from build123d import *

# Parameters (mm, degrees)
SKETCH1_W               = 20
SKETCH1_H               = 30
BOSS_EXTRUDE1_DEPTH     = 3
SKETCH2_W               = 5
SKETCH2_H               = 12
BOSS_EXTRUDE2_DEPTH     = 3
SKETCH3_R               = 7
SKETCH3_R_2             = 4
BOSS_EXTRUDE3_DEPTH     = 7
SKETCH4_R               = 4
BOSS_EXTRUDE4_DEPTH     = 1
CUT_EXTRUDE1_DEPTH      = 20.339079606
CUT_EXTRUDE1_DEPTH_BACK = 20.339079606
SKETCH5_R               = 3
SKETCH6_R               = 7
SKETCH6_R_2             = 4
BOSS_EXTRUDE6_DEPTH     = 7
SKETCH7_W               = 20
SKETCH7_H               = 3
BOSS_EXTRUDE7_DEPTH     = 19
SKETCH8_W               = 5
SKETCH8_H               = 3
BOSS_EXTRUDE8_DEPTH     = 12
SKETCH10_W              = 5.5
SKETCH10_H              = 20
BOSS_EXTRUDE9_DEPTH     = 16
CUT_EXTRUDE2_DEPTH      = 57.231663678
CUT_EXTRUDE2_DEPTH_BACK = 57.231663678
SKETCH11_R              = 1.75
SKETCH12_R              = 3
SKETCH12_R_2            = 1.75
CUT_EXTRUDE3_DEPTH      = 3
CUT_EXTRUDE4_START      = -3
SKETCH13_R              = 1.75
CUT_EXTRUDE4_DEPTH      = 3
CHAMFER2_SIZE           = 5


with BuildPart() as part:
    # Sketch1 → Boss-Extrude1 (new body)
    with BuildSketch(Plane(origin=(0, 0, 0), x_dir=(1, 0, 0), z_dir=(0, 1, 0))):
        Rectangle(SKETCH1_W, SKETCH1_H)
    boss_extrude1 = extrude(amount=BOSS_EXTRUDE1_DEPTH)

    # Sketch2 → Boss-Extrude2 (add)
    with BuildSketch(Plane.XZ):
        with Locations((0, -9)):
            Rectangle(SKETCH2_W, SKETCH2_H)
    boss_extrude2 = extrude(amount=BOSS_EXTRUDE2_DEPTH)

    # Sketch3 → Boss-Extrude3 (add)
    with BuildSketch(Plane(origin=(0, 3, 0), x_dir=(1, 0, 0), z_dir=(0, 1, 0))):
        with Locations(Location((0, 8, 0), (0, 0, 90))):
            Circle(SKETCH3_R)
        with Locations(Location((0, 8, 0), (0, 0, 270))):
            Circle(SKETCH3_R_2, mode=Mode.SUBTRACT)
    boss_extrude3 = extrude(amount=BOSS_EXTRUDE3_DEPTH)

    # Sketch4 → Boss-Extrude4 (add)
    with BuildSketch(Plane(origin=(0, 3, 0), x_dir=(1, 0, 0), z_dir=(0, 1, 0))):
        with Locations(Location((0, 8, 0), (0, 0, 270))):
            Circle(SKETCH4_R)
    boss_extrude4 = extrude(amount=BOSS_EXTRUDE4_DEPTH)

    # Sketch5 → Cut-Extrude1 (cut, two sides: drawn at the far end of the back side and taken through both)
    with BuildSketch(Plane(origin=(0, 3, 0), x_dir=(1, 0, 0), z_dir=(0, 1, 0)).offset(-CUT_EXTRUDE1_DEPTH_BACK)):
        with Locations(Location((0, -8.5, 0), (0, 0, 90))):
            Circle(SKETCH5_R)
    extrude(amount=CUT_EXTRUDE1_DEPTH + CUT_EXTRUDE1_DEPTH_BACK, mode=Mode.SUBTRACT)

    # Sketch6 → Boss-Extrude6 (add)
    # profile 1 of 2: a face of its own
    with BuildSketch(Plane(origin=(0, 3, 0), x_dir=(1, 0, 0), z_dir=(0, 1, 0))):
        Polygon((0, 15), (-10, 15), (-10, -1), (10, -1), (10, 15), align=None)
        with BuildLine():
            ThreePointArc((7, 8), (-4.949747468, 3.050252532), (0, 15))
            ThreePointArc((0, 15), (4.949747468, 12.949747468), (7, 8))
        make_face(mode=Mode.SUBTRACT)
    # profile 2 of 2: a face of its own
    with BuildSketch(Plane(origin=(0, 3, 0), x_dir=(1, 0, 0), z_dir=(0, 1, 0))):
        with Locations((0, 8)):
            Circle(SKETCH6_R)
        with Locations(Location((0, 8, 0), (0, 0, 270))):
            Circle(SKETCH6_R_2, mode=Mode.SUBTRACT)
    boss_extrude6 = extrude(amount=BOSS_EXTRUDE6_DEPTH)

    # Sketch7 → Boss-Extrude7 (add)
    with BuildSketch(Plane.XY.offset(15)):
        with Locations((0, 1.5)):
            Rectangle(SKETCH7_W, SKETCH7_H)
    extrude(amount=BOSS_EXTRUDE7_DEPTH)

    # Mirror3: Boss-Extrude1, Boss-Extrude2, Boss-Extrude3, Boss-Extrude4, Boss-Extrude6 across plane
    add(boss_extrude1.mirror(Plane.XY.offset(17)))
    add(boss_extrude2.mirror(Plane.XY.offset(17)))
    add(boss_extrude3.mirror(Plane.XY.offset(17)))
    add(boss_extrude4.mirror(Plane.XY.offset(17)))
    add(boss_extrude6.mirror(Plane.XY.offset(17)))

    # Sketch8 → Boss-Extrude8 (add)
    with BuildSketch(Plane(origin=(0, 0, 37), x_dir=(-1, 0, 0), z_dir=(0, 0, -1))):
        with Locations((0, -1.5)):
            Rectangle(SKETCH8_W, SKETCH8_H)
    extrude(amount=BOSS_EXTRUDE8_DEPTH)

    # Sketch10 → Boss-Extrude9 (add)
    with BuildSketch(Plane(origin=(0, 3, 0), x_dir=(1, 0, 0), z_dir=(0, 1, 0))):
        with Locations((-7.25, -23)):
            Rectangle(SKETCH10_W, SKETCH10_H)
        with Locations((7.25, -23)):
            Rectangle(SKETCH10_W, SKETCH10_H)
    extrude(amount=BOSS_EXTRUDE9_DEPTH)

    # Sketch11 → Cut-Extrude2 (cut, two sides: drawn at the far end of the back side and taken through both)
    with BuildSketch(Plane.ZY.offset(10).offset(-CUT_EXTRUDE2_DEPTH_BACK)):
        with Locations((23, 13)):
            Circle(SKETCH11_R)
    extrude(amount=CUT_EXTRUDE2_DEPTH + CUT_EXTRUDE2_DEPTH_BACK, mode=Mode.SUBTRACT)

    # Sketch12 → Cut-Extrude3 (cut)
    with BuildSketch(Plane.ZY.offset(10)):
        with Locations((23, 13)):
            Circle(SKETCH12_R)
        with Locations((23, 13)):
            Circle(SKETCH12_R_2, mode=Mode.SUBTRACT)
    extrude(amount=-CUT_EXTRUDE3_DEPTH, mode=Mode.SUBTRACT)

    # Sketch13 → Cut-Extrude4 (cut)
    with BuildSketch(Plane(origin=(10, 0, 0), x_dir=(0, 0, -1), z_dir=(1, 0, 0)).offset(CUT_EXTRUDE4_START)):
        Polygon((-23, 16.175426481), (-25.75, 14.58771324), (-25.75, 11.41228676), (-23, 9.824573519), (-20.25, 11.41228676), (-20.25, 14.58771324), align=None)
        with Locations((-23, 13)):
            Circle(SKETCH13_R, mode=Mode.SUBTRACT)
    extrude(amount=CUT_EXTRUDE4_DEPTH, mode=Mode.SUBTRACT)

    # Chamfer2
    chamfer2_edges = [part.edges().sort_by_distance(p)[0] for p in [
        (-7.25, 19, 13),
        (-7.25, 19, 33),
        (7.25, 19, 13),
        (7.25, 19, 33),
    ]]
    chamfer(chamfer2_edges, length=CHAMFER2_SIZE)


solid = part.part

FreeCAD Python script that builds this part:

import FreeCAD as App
import Part
import Sketcher
from FreeCAD import Vector
Q = App.Units.Quantity


def edges_at(feature, points):
    """Names of the edges that pass closest to the given points."""
    edges = feature.Shape.Edges
    near = lambda p: min(range(len(edges)), key=lambda i: edges[i].distToShape(Part.Vertex(*p))[0])
    return sorted({f"Edge{near(p) + 1}" for p in points})

doc = App.newDocument("Part")
body = doc.addObject("PartDesign::Body", "Body")

# Sketch on XZ plane
sketch1 = body.newObject("Sketcher::SketchObject", "Sketch")
sketch1.AttachmentSupport = (doc.getObject("XZ_Plane"), [""])
sketch1.MapMode = "FlatFace"
sketch1.addGeometry(Part.LineSegment(Vector(-10, -15, 0), Vector(-10, 15, 0)), False)
sketch1.addGeometry(Part.LineSegment(Vector(-10, 15, 0), Vector(10, 15, 0)), False)
sketch1.addGeometry(Part.LineSegment(Vector(10, 15, 0), Vector(10, -15, 0)), False)
sketch1.addGeometry(Part.LineSegment(Vector(10, -15, 0), Vector(-10, -15, 0)), False)
sketch1.addConstraint(Sketcher.Constraint("Coincident", 0, 2, 1, 1))
sketch1.addConstraint(Sketcher.Constraint("Coincident", 1, 2, 2, 1))
sketch1.addConstraint(Sketcher.Constraint("Coincident", 2, 2, 3, 1))
sketch1.addConstraint(Sketcher.Constraint("Coincident", 3, 2, 0, 1))
sketch1.addConstraint(Sketcher.Constraint("Vertical", 0))
sketch1.addConstraint(Sketcher.Constraint("Horizontal", 1))
sketch1.addConstraint(Sketcher.Constraint("Vertical", 2))
sketch1.addConstraint(Sketcher.Constraint("Horizontal", 3))
sketch1.addConstraint(Sketcher.Constraint("Symmetric", 0, 2, 2, 2, -1, 1))
sketch1.addConstraint(Sketcher.Constraint("DistanceX", 1, 1, 1, 2, 20.0))
sketch1.addConstraint(Sketcher.Constraint("DistanceY", 0, 1, 0, 2, 30.0))
pad1 = body.newObject("PartDesign::Pad", "Pad")
pad1.Profile = sketch1
pad1.Length = 3
pad1.Reversed = True

# Sketch on XZ plane
sketch2 = body.newObject("Sketcher::SketchObject", "Sketch001")
sketch2.AttachmentSupport = (doc.getObject("XZ_Plane"), [""])
sketch2.MapMode = "FlatFace"
sketch2.addGeometry(Part.LineSegment(Vector(-2, -3, 0), Vector(-2, -15, 0)), False)
sketch2.addGeometry(Part.LineSegment(Vector(-2, -15, 0), Vector(2, -15, 0)), False)
sketch2.addGeometry(Part.LineSegment(Vector(2, -15, 0), Vector(2, -3, 0)), False)
sketch2.addGeometry(Part.LineSegment(Vector(2, -3, 0), Vector(-2, -3, 0)), False)
sketch2.addConstraint(Sketcher.Constraint("Coincident", 0, 2, 1, 1))
sketch2.addConstraint(Sketcher.Constraint("Coincident", 1, 2, 2, 1))
sketch2.addConstraint(Sketcher.Constraint("Coincident", 2, 2, 3, 1))
sketch2.addConstraint(Sketcher.Constraint("Coincident", 3, 2, 0, 1))
sketch2.addConstraint(Sketcher.Constraint("Vertical", 0))
sketch2.addConstraint(Sketcher.Constraint("Horizontal", 1))
sketch2.addConstraint(Sketcher.Constraint("Vertical", 2))
sketch2.addConstraint(Sketcher.Constraint("Horizontal", 3))
sketch2.addConstraint(Sketcher.Constraint("DistanceX", 1, 1, 1, 2, 5.0))
sketch2.addConstraint(Sketcher.Constraint("DistanceY", 0, 2, 0, 1, 12.0))
sketch2.addConstraint(Sketcher.Constraint("DistanceY", 0, 2, -1, 1, 15.0))
sketch2.addConstraint(Sketcher.Constraint("DistanceX", 0, 2, -1, 1, 2.5))
pad2 = body.newObject("PartDesign::Pad", "Pad001")
pad2.Profile = sketch2
pad2.Length = 3

# Sketch on XZ plane
sketch3 = body.newObject("Sketcher::SketchObject", "Sketch002")
sketch3.AttachmentSupport = (doc.getObject("XZ_Plane"), [""])
sketch3.MapMode = "FlatFace"
sketch3.AttachmentOffset = App.Placement(Vector(0, 0, -3), App.Rotation())
sketch3.addGeometry(Part.Circle(Vector(0, -8, 0), Vector(0, 0, 1), 7), False)
sketch3.addGeometry(Part.Circle(Vector(0, -8, 0), Vector(0, 0, 1), 4), False)
sketch3.addConstraint(Sketcher.Constraint("Coincident", 1, 3, 0, 3))
sketch3.addConstraint(Sketcher.Constraint("PointOnObject", 0, 3, -2))
sketch3.addConstraint(Sketcher.Constraint("Diameter", 0, 14.0))
sketch3.addConstraint(Sketcher.Constraint("Diameter", 1, 8.0))
sketch3.addConstraint(Sketcher.Constraint("DistanceY", 0, 3, -1, 1, 8.0))
pad3 = body.newObject("PartDesign::Pad", "Pad002")
pad3.Profile = sketch3
pad3.Length = 7
pad3.Reversed = True

# Sketch on XZ plane
sketch4 = body.newObject("Sketcher::SketchObject", "Sketch003")
sketch4.AttachmentSupport = (doc.getObject("XZ_Plane"), [""])
sketch4.MapMode = "FlatFace"
sketch4.AttachmentOffset = App.Placement(Vector(0, 0, -3), App.Rotation())
sketch4.addGeometry(Part.Circle(Vector(0, -8, 0), Vector(0, 0, 1), 4), False)
sketch4.addConstraint(Sketcher.Constraint("PointOnObject", 0, 3, -2))
sketch4.addConstraint(Sketcher.Constraint("Diameter", 0, 8.0))
sketch4.addConstraint(Sketcher.Constraint("DistanceY", 0, 3, -1, 1, 8.0))
pad4 = body.newObject("PartDesign::Pad", "Pad003")
pad4.Profile = sketch4
pad4.Length = 1
pad4.Reversed = True

# Sketch on XZ plane
sketch5 = body.newObject("Sketcher::SketchObject", "Sketch004")
sketch5.AttachmentSupport = (doc.getObject("XZ_Plane"), [""])
sketch5.MapMode = "FlatFace"
sketch5.AttachmentOffset = App.Placement(Vector(0, 0, -3), App.Rotation())
sketch5.addGeometry(Part.Circle(Vector(0, 8.5, 0), Vector(0, 0, 1), 3), False)
sketch5.addConstraint(Sketcher.Constraint("PointOnObject", 0, 3, -2))
sketch5.addConstraint(Sketcher.Constraint("Diameter", 0, 6.0))
sketch5.addConstraint(Sketcher.Constraint("DistanceY", -1, 1, 0, 3, 8.5))
pocket1 = body.newObject("PartDesign::Pocket", "Pocket")
pocket1.Profile = sketch5
pocket1.Type = "ThroughAll"
pocket1.Midplane = True

# Sketch on XZ plane
sketch6 = body.newObject("Sketcher::SketchObject", "Sketch005")
sketch6.AttachmentSupport = (doc.getObject("XZ_Plane"), [""])
sketch6.MapMode = "FlatFace"
sketch6.AttachmentOffset = App.Placement(Vector(0, 0, -3), App.Rotation())
sketch6.addGeometry(Part.LineSegment(Vector(10, -15, 0), Vector(-10, -15, 0)), False)
sketch6.addGeometry(Part.LineSegment(Vector(-10, -15, 0), Vector(-10, 1, 0)), False)
sketch6.addGeometry(Part.LineSegment(Vector(-10, 1, 0), Vector(10, 1, 0)), False)
sketch6.addGeometry(Part.LineSegment(Vector(10, 1, 0), Vector(10, -15, 0)), False)
sketch6.addGeometry(Part.Circle(Vector(0, -8, 0), Vector(0, 0, 1), 4), False)
sketch6.addConstraint(Sketcher.Constraint("Coincident", 0, 2, 1, 1))
sketch6.addConstraint(Sketcher.Constraint("Coincident", 1, 2, 2, 1))
sketch6.addConstraint(Sketcher.Constraint("Coincident", 2, 2, 3, 1))
sketch6.addConstraint(Sketcher.Constraint("Coincident", 3, 2, 0, 1))
sketch6.addConstraint(Sketcher.Constraint("Horizontal", 0))
sketch6.addConstraint(Sketcher.Constraint("Vertical", 1))
sketch6.addConstraint(Sketcher.Constraint("Horizontal", 2))
sketch6.addConstraint(Sketcher.Constraint("Vertical", 3))
sketch6.addConstraint(Sketcher.Constraint("PointOnObject", 4, 3, -2))
sketch6.addConstraint(Sketcher.Constraint("Diameter", 4, 8.0))
sketch6.addConstraint(Sketcher.Constraint("DistanceX", 0, 2, 0, 1, 20.0))
sketch6.addConstraint(Sketcher.Constraint("DistanceY", 1, 1, 1, 2, 16.0))
sketch6.addConstraint(Sketcher.Constraint("DistanceY", 4, 3, -1, 1, 8.0))
sketch6.addConstraint(Sketcher.Constraint("DistanceX", 0, 2, -1, 1, 10.0))
sketch6.addConstraint(Sketcher.Constraint("DistanceY", 0, 2, -1, 1, 15.0))
pad5 = body.newObject("PartDesign::Pad", "Pad004")
pad5.Profile = sketch6
pad5.Length = 7
pad5.Reversed = True

# Sketch on XY plane
sketch7 = body.newObject("Sketcher::SketchObject", "Sketch006")
sketch7.AttachmentSupport = (doc.getObject("XY_Plane"), [""])
sketch7.MapMode = "FlatFace"
sketch7.AttachmentOffset = App.Placement(Vector(0, 0, 15), App.Rotation())
sketch7.addGeometry(Part.LineSegment(Vector(-10, 3, 0), Vector(-10, 0, 0)), False)
sketch7.addGeometry(Part.LineSegment(Vector(-10, 0, 0), Vector(10, 0, 0)), False)
sketch7.addGeometry(Part.LineSegment(Vector(10, 0, 0), Vector(10, 3, 0)), False)
sketch7.addGeometry(Part.LineSegment(Vector(10, 3, 0), Vector(-10, 3, 0)), False)
sketch7.addConstraint(Sketcher.Constraint("Coincident", 0, 2, 1, 1))
sketch7.addConstraint(Sketcher.Constraint("Coincident", 1, 2, 2, 1))
sketch7.addConstraint(Sketcher.Constraint("Coincident", 2, 2, 3, 1))
sketch7.addConstraint(Sketcher.Constraint("Coincident", 3, 2, 0, 1))
sketch7.addConstraint(Sketcher.Constraint("Vertical", 0))
sketch7.addConstraint(Sketcher.Constraint("Horizontal", 1))
sketch7.addConstraint(Sketcher.Constraint("Vertical", 2))
sketch7.addConstraint(Sketcher.Constraint("Horizontal", 3))
sketch7.addConstraint(Sketcher.Constraint("Symmetric", 0, 2, 1, 2, -1, 1))
sketch7.addConstraint(Sketcher.Constraint("DistanceX", 1, 1, 1, 2, 20.0))
sketch7.addConstraint(Sketcher.Constraint("DistanceY", 0, 2, 0, 1, 3.0))
pad6 = body.newObject("PartDesign::Pad", "Pad005")
pad6.Profile = sketch7
pad6.Length = 19
doc.recompute()

datumplane = body.newObject("PartDesign::Plane", "DatumPlane")
datumplane.AttachmentSupport = (doc.getObject("XY_Plane"), [""])
datumplane.MapMode = "FlatFace"
datumplane.AttachmentOffset = App.Placement(Vector(0, 0, 17), App.Rotation())
mirrored = body.newObject("PartDesign::Mirrored", "Mirrored")
mirrored.Originals = [pad1, pad2, pad3, pad4, pad5]
mirrored.MirrorPlane = (datumplane, [""])
body.Tip = mirrored

# Sketch on XY plane
sketch8 = body.newObject("Sketcher::SketchObject", "Sketch007")
sketch8.AttachmentSupport = (doc.getObject("XY_Plane"), [""])
sketch8.MapMode = "FlatFace"
sketch8.AttachmentOffset = App.Placement(Vector(0, 0, 37), App.Rotation())
sketch8.addGeometry(Part.LineSegment(Vector(2.5, 0, 0), Vector(2.5, -3, 0)), False)
sketch8.addGeometry(Part.LineSegment(Vector(2.5, -3, 0), Vector(-2.5, -3, 0)), False)
sketch8.addGeometry(Part.LineSegment(Vector(-2.5, -3, 0), Vector(-2.5, 0, 0)), False)
sketch8.addGeometry(Part.LineSegment(Vector(-2.5, 0, 0), Vector(2.5, 0, 0)), False)
sketch8.addConstraint(Sketcher.Constraint("Coincident", 0, 2, 1, 1))
sketch8.addConstraint(Sketcher.Constraint("Coincident", 1, 2, 2, 1))
sketch8.addConstraint(Sketcher.Constraint("Coincident", 2, 2, 3, 1))
sketch8.addConstraint(Sketcher.Constraint("Coincident", 3, 2, 0, 1))
sketch8.addConstraint(Sketcher.Constraint("Vertical", 0))
sketch8.addConstraint(Sketcher.Constraint("Horizontal", 1))
sketch8.addConstraint(Sketcher.Constraint("Vertical", 2))
sketch8.addConstraint(Sketcher.Constraint("Horizontal", 3))
sketch8.addConstraint(Sketcher.Constraint("Symmetric", 2, 2, 3, 2, -1, 1))
sketch8.addConstraint(Sketcher.Constraint("DistanceX", 1, 2, 1, 1, 5.0))
sketch8.addConstraint(Sketcher.Constraint("DistanceY", 0, 2, 0, 1, 3.0))
pad7 = body.newObject("PartDesign::Pad", "Pad006")
pad7.Profile = sketch8
pad7.Length = 12
pad7.Reversed = True

# Sketch on XZ plane
sketch9 = body.newObject("Sketcher::SketchObject", "Sketch008")
sketch9.AttachmentSupport = (doc.getObject("XZ_Plane"), [""])
sketch9.MapMode = "FlatFace"
sketch9.AttachmentOffset = App.Placement(Vector(0, 0, -3), App.Rotation())
sketch9.addGeometry(Part.LineSegment(Vector(-10, 13, 0), Vector(-10, 33, 0)), False)
sketch9.addGeometry(Part.LineSegment(Vector(-10, 33, 0), Vector(-4, 33, 0)), False)
sketch9.addGeometry(Part.LineSegment(Vector(-4, 33, 0), Vector(-4, 13, 0)), False)
sketch9.addGeometry(Part.LineSegment(Vector(-4, 13, 0), Vector(-10, 13, 0)), False)
sketch9.addGeometry(Part.LineSegment(Vector(4, 13, 0), Vector(4, 33, 0)), False)
sketch9.addGeometry(Part.LineSegment(Vector(4, 33, 0), Vector(10, 33, 0)), False)
sketch9.addGeometry(Part.LineSegment(Vector(10, 33, 0), Vector(10, 13, 0)), False)
sketch9.addGeometry(Part.LineSegment(Vector(10, 13, 0), Vector(4, 13, 0)), False)
sketch9.addConstraint(Sketcher.Constraint("Coincident", 0, 2, 1, 1))
sketch9.addConstraint(Sketcher.Constraint("Coincident", 1, 2, 2, 1))
sketch9.addConstraint(Sketcher.Constraint("Coincident", 2, 2, 3, 1))
sketch9.addConstraint(Sketcher.Constraint("Coincident", 3, 2, 0, 1))
sketch9.addConstraint(Sketcher.Constraint("Coincident", 4, 2, 5, 1))
sketch9.addConstraint(Sketcher.Constraint("Coincident", 5, 2, 6, 1))
sketch9.addConstraint(Sketcher.Constraint("Coincident", 6, 2, 7, 1))
sketch9.addConstraint(Sketcher.Constraint("Coincident", 7, 2, 4, 1))
sketch9.addConstraint(Sketcher.Constraint("Vertical", 0))
sketch9.addConstraint(Sketcher.Constraint("Horizontal", 1))
sketch9.addConstraint(Sketcher.Constraint("Vertical", 2))
sketch9.addConstraint(Sketcher.Constraint("Horizontal", 3))
sketch9.addConstraint(Sketcher.Constraint("Vertical", 4))
sketch9.addConstraint(Sketcher.Constraint("Horizontal", 5))
sketch9.addConstraint(Sketcher.Constraint("Vertical", 6))
sketch9.addConstraint(Sketcher.Constraint("Horizontal", 7))
sketch9.addConstraint(Sketcher.Constraint("Symmetric", 1, 2, 4, 2, -2))
sketch9.addConstraint(Sketcher.Constraint("Symmetric", 3, 2, 6, 2, -2))
sketch9.addConstraint(Sketcher.Constraint("DistanceY", 0, 1, 0, 2, 20.0))
sketch9.addConstraint(Sketcher.Constraint("DistanceX", 1, 1, 1, 2, 5.5))
sketch9.addConstraint(Sketcher.Constraint("DistanceX", 0, 2, -1, 1, 10.0))
sketch9.addConstraint(Sketcher.Constraint("DistanceY", -1, 1, 0, 2, 33.0))
pad8 = body.newObject("PartDesign::Pad", "Pad007")
pad8.Profile = sketch9
pad8.Length = 16
pad8.Reversed = True

# Sketch on YZ plane
sketch10 = body.newObject("Sketcher::SketchObject", "Sketch009")
sketch10.AttachmentSupport = (doc.getObject("YZ_Plane"), [""])
sketch10.MapMode = "FlatFace"
sketch10.AttachmentOffset = App.Placement(Vector(0, 0, -10), App.Rotation())
sketch10.addGeometry(Part.Circle(Vector(13, 23, 0), Vector(0, 0, 1), 1.8), False)
sketch10.addConstraint(Sketcher.Constraint("Diameter", 0, 3.5))
sketch10.addConstraint(Sketcher.Constraint("DistanceX", -1, 1, 0, 3, 13.0))
sketch10.addConstraint(Sketcher.Constraint("DistanceY", -1, 1, 0, 3, 23.0))
pocket2 = body.newObject("PartDesign::Pocket", "Pocket001")
pocket2.Profile = sketch10
pocket2.Type = "ThroughAll"
pocket2.Midplane = True

# Sketch on YZ plane
sketch11 = body.newObject("Sketcher::SketchObject", "Sketch010")
sketch11.AttachmentSupport = (doc.getObject("YZ_Plane"), [""])
sketch11.MapMode = "FlatFace"
sketch11.AttachmentOffset = App.Placement(Vector(0, 0, -10), App.Rotation())
sketch11.addGeometry(Part.Circle(Vector(13, 23, 0), Vector(0, 0, 1), 3), False)
sketch11.addGeometry(Part.Circle(Vector(13, 23, 0), Vector(0, 0, 1), 1.8), False)
sketch11.addConstraint(Sketcher.Constraint("Coincident", 1, 3, 0, 3))
sketch11.addConstraint(Sketcher.Constraint("Diameter", 0, 6.0))
sketch11.addConstraint(Sketcher.Constraint("Diameter", 1, 3.5))
sketch11.addConstraint(Sketcher.Constraint("DistanceX", -1, 1, 0, 3, 13.0))
sketch11.addConstraint(Sketcher.Constraint("DistanceY", -1, 1, 0, 3, 23.0))
pocket3 = body.newObject("PartDesign::Pocket", "Pocket002")
pocket3.Profile = sketch11
pocket3.Length = 3
pocket3.Reversed = True

# Sketch on YZ plane
sketch12 = body.newObject("Sketcher::SketchObject", "Sketch011")
sketch12.AttachmentSupport = (doc.getObject("YZ_Plane"), [""])
sketch12.MapMode = "FlatFace"
sketch12.AttachmentOffset = App.Placement(Vector(0, 0, 7), App.Rotation())
sketch12.addGeometry(Part.LineSegment(Vector(16.2, 23, 0), Vector(14.6, 25.8, 0)), False)
sketch12.addGeometry(Part.LineSegment(Vector(14.6, 25.8, 0), Vector(11.4, 25.8, 0)), False)
sketch12.addGeometry(Part.LineSegment(Vector(11.4, 25.8, 0), Vector(9.8, 23, 0)), False)
sketch12.addGeometry(Part.LineSegment(Vector(9.8, 23, 0), Vector(11.4, 20.2, 0)), False)
sketch12.addGeometry(Part.LineSegment(Vector(11.4, 20.2, 0), Vector(14.6, 20.2, 0)), False)
sketch12.addGeometry(Part.LineSegment(Vector(14.6, 20.2, 0), Vector(16.2, 23, 0)), False)
sketch12.addGeometry(Part.Circle(Vector(13, 23, 0), Vector(0, 0, 1), 1.8), False)
sketch12.addConstraint(Sketcher.Constraint("Coincident", 0, 2, 1, 1))
sketch12.addConstraint(Sketcher.Constraint("Coincident", 1, 2, 2, 1))
sketch12.addConstraint(Sketcher.Constraint("Coincident", 2, 2, 3, 1))
sketch12.addConstraint(Sketcher.Constraint("Coincident", 3, 2, 4, 1))
sketch12.addConstraint(Sketcher.Constraint("Coincident", 4, 2, 5, 1))
sketch12.addConstraint(Sketcher.Constraint("Coincident", 5, 2, 0, 1))
sketch12.addConstraint(Sketcher.Constraint("Horizontal", 1))
sketch12.addConstraint(Sketcher.Constraint("Horizontal", 4))
sketch12.addConstraint(Sketcher.Constraint("Parallel", 0, 3))
sketch12.addConstraint(Sketcher.Constraint("Parallel", 2, 5))
sketch12.addConstraint(Sketcher.Constraint("Horizontal", 6, 3, 2, 2))
sketch12.addConstraint(Sketcher.Constraint("Horizontal", 2, 2, 5, 2))
sketch12.addConstraint(Sketcher.Constraint("Vertical", 1, 2, 3, 2))
sketch12.addConstraint(Sketcher.Constraint("Vertical", 0, 2, 4, 2))
sketch12.addConstraint(Sketcher.Constraint("Diameter", 6, 3.5))
sketch12.addConstraint(Sketcher.Constraint("Angle", 0, Q("120 deg")))
sketch12.addConstraint(Sketcher.Constraint("DistanceX", -1, 1, 6, 3, 13.0))
sketch12.addConstraint(Sketcher.Constraint("DistanceY", -1, 1, 6, 3, 23.0))
sketch12.addConstraint(Sketcher.Constraint("DistanceY", 3, 2, 1, 2, 5.5))
sketch12.addConstraint(Sketcher.Constraint("DistanceX", 1, 2, 1, 1, 3.175426))
sketch12.addConstraint(Sketcher.Constraint("DistanceX", -1, 1, 0, 2, 14.587713))
pocket4 = body.newObject("PartDesign::Pocket", "Pocket003")
pocket4.Profile = sketch12
pocket4.Length = 3
pocket4.Reversed = True
doc.recompute()

chamfer = body.newObject("PartDesign::Chamfer", "Chamfer")
chamfer.Base = (pocket4, edges_at(pocket4, [
    (-7.25, 19, 13),
    (-7.25, 19, 33),
    (7.25, 19, 13),
    (7.25, 19, 33),
]))
chamfer.Size = 5

doc.recompute()
